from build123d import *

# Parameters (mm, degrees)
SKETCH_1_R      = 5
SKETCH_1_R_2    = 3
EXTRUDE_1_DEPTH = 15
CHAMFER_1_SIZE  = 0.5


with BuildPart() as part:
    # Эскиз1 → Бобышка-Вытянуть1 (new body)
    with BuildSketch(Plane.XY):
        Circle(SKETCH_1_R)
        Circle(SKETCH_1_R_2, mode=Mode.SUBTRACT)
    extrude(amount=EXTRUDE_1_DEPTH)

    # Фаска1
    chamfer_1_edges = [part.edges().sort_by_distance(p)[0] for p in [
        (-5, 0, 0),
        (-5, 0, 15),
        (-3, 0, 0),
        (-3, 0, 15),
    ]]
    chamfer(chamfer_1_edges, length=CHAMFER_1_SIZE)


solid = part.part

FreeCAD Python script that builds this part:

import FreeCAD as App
import Part
import Sketcher


def edges_at(feature, points):
    """Names of the edges that pass closest to the given points."""
    edges = feature.Shape.Edges
    near = lambda p: min(range(len(edges)), key=lambda i: edges[i].distToShape(Part.Vertex(*p))[0])
    return sorted({f"Edge{near(p) + 1}" for p in points})

doc = App.newDocument("Part")
body = doc.addObject("PartDesign::Body", "Body")

sketch1 = body.newObject("Sketcher::SketchObject", "Sketch")
sketch1.AttachmentSupport = (doc.getObject("XY_Plane"), [""])
sketch1.MapMode = "FlatFace"
sketch1.addGeometry([
    Part.Circle(App.Vector(0, 0, 0), App.Vector(0, 0, 1), 5),
    Part.Circle(App.Vector(0, 0, 0), App.Vector(0, 0, 1), 3),
], False)
sketch1.addConstraint([
    Sketcher.Constraint("Coincident", 0, 3, -1, 1),
    Sketcher.Constraint("Coincident", 1, 3, -1, 1),
    Sketcher.Constraint("Diameter", 0, 10.0),
    Sketcher.Constraint("Diameter", 1, 6.0),
])
pad1 = body.newObject("PartDesign::Pad", "Pad")
pad1.Profile = sketch1
pad1.Length = 15
doc.recompute()

chamfer = body.newObject("PartDesign::Chamfer", "Chamfer")
chamfer.Base = (pad1, edges_at(pad1, [
    (-5, 0, 0),
    (-5, 0, 15),
    (-3, 0, 0),
    (-3, 0, 15),
]))
chamfer.Size = 0.5

doc.recompute()
